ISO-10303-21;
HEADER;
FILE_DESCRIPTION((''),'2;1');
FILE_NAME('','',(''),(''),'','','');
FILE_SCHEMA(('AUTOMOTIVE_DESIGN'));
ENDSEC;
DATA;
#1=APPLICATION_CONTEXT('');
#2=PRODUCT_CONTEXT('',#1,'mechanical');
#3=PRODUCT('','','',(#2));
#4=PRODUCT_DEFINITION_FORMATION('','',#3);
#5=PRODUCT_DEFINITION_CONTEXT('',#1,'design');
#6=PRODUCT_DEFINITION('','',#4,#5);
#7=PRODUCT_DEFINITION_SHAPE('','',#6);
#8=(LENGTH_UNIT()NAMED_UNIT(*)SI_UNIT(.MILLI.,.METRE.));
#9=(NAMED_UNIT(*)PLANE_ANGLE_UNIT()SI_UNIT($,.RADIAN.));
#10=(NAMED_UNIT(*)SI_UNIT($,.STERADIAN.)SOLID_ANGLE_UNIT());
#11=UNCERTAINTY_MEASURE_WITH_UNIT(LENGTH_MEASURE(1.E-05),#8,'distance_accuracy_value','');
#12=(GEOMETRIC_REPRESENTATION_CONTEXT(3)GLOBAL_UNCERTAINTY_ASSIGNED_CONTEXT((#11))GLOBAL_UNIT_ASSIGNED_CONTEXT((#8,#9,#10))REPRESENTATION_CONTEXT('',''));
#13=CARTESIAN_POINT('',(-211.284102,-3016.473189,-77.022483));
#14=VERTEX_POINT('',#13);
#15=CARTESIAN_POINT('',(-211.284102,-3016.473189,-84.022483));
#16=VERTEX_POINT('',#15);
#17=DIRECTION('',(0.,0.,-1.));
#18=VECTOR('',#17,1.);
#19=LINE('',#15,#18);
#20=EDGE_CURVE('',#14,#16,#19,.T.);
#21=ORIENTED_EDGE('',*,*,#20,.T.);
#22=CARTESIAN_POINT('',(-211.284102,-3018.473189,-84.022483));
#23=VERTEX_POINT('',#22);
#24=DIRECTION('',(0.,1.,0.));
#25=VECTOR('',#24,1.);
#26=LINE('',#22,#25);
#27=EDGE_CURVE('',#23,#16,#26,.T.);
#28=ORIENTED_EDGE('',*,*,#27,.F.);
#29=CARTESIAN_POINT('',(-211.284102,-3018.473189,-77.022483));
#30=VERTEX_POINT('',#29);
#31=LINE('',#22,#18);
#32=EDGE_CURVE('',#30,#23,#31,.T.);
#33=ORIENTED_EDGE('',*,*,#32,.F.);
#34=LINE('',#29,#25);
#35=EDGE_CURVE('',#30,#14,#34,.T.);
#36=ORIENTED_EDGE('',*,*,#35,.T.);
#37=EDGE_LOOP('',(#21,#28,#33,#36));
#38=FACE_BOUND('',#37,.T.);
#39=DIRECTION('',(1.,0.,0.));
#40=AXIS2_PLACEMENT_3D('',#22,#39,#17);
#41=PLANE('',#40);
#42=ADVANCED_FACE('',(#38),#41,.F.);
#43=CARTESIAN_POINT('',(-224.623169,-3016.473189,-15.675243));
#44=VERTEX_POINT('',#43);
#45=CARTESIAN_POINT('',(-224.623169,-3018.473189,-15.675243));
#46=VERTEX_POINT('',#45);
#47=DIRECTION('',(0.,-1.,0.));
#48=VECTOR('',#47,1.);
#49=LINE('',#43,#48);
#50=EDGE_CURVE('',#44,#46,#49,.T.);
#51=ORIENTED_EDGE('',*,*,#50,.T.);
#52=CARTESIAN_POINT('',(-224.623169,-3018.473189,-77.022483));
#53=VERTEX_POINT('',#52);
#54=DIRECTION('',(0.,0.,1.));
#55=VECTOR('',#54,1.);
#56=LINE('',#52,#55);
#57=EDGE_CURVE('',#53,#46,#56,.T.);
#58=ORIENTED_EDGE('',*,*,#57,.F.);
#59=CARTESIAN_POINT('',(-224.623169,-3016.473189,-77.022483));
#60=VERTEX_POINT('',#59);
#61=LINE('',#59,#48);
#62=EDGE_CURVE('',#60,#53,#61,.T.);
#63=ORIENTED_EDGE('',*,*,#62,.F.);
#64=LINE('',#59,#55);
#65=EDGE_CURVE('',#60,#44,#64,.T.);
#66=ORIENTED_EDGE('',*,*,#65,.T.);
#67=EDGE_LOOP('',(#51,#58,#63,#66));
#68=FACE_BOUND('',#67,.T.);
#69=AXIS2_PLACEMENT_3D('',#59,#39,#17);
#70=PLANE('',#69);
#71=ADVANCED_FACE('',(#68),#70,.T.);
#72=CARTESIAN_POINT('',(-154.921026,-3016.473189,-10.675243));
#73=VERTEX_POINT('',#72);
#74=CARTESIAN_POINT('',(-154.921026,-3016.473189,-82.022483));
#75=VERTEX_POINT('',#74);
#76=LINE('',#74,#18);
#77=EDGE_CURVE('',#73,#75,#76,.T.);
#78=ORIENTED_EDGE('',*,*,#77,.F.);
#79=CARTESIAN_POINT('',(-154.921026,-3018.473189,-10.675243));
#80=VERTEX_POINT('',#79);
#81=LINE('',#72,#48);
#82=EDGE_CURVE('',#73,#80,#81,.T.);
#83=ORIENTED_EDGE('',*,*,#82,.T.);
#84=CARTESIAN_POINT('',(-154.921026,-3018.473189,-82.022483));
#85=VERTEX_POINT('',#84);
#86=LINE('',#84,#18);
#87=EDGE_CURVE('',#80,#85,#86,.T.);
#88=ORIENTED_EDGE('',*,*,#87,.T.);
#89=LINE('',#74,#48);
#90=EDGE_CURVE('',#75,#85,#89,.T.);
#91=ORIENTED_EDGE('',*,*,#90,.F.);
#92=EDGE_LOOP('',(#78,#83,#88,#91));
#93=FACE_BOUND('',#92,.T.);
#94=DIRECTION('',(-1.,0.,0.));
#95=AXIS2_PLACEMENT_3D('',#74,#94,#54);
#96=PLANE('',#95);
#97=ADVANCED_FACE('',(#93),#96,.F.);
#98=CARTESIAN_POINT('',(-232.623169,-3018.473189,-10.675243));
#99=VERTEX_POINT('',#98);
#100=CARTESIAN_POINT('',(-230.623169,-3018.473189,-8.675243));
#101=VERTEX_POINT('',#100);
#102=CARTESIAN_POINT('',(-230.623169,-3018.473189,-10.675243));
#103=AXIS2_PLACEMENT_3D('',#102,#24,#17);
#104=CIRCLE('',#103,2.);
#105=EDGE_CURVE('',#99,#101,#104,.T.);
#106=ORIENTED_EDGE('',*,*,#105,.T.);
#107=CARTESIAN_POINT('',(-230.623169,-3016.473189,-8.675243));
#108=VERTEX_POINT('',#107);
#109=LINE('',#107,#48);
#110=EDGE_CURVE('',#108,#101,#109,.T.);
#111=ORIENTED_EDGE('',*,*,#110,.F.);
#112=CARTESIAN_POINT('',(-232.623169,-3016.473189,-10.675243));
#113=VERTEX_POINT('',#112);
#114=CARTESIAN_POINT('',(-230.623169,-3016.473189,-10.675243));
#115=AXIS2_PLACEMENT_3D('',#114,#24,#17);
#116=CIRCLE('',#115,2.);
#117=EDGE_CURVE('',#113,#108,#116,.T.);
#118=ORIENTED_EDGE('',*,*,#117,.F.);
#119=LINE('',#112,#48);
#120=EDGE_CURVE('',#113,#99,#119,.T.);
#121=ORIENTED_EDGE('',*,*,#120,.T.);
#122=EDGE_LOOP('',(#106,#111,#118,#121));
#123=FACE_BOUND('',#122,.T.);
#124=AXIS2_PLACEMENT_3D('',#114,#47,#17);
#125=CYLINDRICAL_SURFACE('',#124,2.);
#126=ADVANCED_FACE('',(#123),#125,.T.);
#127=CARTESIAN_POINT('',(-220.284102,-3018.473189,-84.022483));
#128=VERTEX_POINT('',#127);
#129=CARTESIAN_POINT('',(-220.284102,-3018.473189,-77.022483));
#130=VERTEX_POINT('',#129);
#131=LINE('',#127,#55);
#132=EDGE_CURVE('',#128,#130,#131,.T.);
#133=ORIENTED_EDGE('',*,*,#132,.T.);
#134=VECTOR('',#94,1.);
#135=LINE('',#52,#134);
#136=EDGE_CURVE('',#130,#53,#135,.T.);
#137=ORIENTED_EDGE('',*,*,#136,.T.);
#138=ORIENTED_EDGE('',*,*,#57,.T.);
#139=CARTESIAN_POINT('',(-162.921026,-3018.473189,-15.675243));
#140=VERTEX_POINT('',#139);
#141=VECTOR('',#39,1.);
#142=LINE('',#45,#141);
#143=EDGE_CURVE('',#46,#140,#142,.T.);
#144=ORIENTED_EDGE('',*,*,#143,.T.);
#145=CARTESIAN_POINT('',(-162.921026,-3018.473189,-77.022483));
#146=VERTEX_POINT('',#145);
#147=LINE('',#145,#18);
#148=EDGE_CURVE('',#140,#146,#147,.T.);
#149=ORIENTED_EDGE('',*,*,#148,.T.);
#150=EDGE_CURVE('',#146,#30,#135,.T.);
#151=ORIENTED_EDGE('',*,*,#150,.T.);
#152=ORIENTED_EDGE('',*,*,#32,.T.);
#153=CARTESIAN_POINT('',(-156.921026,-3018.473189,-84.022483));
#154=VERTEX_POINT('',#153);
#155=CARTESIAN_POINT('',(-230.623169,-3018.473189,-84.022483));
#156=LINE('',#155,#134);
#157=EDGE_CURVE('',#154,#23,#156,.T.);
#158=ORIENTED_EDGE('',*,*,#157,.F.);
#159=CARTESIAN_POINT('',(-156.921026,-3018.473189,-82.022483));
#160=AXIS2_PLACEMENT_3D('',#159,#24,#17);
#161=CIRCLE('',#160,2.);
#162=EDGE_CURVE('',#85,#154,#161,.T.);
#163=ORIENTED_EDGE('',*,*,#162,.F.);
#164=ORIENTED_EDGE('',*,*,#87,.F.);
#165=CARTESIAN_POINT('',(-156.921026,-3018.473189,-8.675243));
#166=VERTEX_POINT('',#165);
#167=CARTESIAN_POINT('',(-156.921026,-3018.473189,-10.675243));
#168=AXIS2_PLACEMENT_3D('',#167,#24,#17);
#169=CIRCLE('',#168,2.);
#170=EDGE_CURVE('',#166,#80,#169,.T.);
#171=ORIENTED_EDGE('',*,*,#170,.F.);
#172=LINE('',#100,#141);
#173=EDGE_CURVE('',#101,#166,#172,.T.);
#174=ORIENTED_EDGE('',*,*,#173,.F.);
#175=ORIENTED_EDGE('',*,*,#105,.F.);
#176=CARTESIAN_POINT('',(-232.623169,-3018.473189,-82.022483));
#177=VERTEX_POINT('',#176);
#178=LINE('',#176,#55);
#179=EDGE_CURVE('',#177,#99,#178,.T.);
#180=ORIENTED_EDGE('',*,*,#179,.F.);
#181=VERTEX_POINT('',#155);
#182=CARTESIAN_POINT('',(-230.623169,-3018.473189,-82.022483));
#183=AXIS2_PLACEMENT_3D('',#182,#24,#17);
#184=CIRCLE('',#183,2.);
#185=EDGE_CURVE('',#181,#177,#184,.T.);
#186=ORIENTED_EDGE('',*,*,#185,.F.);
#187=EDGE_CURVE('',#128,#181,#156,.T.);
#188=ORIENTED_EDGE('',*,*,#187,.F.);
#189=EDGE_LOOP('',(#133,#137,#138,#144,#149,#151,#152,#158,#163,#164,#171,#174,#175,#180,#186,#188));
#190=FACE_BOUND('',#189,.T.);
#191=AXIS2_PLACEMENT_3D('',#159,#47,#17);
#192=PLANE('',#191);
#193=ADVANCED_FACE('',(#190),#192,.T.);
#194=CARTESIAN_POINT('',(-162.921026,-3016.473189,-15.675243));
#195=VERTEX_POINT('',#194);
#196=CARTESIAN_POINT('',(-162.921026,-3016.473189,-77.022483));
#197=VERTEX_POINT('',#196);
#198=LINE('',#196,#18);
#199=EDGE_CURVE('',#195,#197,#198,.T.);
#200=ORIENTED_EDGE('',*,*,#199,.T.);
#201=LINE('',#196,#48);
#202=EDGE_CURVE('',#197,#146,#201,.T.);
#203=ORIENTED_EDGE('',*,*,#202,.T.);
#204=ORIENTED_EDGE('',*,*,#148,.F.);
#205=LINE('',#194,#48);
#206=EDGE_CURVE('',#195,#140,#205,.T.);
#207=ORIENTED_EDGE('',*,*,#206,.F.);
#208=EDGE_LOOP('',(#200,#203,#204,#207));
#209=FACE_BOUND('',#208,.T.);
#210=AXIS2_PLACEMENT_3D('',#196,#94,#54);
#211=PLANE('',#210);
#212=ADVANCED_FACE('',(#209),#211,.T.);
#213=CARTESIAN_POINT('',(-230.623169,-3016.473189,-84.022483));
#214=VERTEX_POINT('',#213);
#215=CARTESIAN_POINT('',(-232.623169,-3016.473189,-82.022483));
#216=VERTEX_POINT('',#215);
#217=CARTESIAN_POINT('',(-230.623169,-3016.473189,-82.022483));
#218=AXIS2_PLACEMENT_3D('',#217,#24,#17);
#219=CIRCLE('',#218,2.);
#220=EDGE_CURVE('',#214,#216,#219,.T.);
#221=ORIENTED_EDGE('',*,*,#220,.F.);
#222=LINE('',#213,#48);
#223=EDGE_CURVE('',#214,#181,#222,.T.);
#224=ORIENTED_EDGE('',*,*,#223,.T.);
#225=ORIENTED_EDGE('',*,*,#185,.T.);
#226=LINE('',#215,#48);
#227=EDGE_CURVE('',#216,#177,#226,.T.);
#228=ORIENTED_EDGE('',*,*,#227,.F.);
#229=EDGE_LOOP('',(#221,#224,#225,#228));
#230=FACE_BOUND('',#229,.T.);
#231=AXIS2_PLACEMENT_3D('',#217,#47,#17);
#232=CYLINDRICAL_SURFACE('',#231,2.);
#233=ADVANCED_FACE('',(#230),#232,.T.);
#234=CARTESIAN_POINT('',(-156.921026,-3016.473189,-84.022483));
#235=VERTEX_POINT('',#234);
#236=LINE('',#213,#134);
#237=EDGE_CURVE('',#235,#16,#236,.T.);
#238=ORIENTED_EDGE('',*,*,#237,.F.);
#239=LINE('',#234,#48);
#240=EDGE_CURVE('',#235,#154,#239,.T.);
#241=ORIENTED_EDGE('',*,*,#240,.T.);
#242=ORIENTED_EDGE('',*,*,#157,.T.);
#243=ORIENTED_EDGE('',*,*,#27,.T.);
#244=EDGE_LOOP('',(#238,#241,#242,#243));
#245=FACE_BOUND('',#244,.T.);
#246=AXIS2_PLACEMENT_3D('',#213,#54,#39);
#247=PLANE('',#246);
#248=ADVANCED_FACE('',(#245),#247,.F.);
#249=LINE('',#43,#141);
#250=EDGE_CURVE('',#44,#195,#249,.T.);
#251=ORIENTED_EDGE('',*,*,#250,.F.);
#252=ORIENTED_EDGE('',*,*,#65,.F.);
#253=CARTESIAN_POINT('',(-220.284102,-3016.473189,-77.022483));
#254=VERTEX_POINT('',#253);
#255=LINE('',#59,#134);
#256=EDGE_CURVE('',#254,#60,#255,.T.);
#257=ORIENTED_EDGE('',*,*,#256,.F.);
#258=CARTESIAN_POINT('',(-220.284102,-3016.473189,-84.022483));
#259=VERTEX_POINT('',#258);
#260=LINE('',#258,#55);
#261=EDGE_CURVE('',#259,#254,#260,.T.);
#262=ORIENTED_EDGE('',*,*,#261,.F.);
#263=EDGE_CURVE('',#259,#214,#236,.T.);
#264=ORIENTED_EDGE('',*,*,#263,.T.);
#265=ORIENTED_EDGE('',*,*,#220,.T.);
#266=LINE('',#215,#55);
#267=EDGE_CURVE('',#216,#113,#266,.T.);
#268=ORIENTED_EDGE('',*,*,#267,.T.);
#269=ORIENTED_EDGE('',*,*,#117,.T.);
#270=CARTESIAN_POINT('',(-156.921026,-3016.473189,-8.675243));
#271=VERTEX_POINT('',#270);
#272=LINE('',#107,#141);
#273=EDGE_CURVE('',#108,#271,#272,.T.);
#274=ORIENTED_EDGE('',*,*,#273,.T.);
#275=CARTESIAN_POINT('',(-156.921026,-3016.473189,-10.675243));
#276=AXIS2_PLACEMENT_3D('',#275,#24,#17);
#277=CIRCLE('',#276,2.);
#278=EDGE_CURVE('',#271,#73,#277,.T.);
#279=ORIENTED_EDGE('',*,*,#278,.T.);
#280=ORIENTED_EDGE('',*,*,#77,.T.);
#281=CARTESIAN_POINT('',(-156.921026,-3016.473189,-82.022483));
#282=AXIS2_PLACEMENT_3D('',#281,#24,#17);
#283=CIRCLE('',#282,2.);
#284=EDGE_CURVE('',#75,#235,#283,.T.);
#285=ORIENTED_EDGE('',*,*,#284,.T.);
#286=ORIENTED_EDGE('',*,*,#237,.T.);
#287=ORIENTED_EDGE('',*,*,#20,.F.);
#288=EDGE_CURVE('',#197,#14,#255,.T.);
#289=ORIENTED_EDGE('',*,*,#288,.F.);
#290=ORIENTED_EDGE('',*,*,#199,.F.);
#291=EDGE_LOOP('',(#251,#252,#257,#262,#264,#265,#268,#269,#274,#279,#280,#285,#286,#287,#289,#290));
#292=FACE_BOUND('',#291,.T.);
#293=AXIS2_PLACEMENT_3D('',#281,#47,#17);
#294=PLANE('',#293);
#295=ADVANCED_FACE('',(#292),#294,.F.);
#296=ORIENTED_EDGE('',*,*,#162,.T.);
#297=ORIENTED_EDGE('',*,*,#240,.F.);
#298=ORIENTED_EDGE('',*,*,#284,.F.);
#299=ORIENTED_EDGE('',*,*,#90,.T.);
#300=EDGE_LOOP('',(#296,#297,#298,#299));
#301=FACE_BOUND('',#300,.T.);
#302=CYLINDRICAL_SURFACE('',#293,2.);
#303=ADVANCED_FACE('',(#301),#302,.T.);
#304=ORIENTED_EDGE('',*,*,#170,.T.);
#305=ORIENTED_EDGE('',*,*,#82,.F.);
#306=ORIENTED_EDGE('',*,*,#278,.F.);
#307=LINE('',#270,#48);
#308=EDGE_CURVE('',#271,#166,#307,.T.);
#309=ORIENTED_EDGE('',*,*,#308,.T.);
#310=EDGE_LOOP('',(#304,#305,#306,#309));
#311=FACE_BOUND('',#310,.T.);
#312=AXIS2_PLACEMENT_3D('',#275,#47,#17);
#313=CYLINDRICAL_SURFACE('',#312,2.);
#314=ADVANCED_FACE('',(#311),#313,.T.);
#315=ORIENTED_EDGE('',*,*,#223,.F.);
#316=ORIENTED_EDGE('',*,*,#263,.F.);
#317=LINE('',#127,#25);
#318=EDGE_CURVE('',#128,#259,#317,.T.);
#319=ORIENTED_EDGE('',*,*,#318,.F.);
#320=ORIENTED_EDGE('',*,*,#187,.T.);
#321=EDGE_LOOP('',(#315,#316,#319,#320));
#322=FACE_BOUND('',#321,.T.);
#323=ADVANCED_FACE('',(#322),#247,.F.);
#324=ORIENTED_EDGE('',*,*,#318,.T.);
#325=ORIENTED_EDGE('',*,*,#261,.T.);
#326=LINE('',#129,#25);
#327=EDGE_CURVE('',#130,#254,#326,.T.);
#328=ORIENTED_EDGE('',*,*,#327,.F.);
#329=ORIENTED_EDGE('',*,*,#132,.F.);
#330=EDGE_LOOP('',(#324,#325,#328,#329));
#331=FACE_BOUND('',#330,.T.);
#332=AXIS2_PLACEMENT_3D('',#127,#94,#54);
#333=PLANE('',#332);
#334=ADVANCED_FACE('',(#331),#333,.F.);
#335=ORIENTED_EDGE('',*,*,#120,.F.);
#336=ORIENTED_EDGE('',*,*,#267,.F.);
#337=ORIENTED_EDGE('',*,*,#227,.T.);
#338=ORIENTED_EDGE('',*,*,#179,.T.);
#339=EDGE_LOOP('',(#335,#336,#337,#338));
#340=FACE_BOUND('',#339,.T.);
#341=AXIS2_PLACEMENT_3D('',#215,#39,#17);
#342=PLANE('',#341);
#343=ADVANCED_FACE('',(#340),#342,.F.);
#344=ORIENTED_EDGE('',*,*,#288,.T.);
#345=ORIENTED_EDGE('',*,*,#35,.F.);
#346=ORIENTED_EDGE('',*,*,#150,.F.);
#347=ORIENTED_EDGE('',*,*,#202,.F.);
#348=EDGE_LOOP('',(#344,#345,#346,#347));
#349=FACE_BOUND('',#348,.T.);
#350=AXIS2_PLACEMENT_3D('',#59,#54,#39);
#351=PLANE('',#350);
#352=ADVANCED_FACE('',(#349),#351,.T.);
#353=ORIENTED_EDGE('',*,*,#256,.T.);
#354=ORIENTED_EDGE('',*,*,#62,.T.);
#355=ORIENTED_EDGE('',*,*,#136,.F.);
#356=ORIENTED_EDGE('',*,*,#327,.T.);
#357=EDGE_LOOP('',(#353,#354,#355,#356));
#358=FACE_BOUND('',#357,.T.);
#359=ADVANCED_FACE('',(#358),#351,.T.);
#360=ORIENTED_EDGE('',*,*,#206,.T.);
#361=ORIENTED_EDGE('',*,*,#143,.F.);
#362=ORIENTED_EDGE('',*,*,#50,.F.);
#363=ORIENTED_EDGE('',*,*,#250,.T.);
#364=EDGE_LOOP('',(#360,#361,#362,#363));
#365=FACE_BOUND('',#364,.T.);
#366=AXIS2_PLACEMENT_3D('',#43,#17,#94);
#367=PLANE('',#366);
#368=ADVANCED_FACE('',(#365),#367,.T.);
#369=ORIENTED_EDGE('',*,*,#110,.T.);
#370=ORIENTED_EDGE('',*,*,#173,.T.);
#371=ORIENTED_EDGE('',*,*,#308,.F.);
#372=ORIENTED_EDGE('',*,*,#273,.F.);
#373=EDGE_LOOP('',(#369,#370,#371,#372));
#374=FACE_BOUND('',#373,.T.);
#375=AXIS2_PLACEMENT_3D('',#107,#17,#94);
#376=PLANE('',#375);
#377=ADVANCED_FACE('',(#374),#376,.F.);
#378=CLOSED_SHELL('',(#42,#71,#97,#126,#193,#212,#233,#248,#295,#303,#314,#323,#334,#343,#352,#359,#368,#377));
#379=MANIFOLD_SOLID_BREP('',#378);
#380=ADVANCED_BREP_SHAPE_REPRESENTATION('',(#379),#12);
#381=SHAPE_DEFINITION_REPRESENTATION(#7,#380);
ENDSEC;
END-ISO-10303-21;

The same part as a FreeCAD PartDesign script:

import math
import FreeCAD as App
import Part
import Sketcher

V = App.Vector
Q = App.Units.Quantity

doc = App.newDocument("Part")
body = doc.addObject("PartDesign::Body", "Body")

sketch1 = body.newObject("Sketcher::SketchObject", "Sketch")
sketch1.AttachmentSupport = (doc.getObject("XZ_Plane"), [""])
sketch1.MapMode = "FlatFace"
sketch1.AttachmentOffset = App.Placement(V(0, 0, 3018.473189), App.Rotation())
sketch1.addGeometry([
    Part.LineSegment(V(-156.9, -84, 0), V(-230.6, -84, 0)),
    Part.ArcOfCircle(Part.Circle(V(-230.6, -82, 0), V(0, 0, 1), 2), math.radians(180), math.radians(270)),
    Part.LineSegment(V(-232.6, -82, 0), V(-232.6, -10.7, 0)),
    Part.ArcOfCircle(Part.Circle(V(-230.6, -10.7, 0), V(0, 0, 1), 2), math.radians(90), math.radians(180)),
    Part.LineSegment(V(-230.6, -8.7, 0), V(-156.9, -8.7, 0)),
    Part.ArcOfCircle(Part.Circle(V(-156.9, -10.7, 0), V(0, 0, 1), 2), math.radians(0), math.radians(90)),
    Part.LineSegment(V(-154.9, -10.7, 0), V(-154.9, -82, 0)),
    Part.ArcOfCircle(Part.Circle(V(-156.9, -82, 0), V(0, 0, 1), 2), math.radians(-90), math.radians(0)),
    Part.LineSegment(V(-224.6, -15.7, 0), V(-224.6, -77, 0)),
    Part.LineSegment(V(-224.6, -77, 0), V(-162.9, -77, 0)),
    Part.LineSegment(V(-162.9, -77, 0), V(-162.9, -15.7, 0)),
    Part.LineSegment(V(-162.9, -15.7, 0), V(-224.6, -15.7, 0)),
], False)
sketch1.addConstraint([
    Sketcher.Constraint("Tangent", 0, 2, 1, 2),
    Sketcher.Constraint("Tangent", 1, 1, 2, 1),
    Sketcher.Constraint("Tangent", 2, 2, 3, 2),
    Sketcher.Constraint("Tangent", 3, 1, 4, 1),
    Sketcher.Constraint("Tangent", 4, 2, 5, 2),
    Sketcher.Constraint("Tangent", 5, 1, 6, 1),
    Sketcher.Constraint("Tangent", 6, 2, 7, 2),
    Sketcher.Constraint("Tangent", 7, 1, 0, 1),
    Sketcher.Constraint("Coincident", 8, 2, 9, 1),
    Sketcher.Constraint("Coincident", 9, 2, 10, 1),
    Sketcher.Constraint("Coincident", 10, 2, 11, 1),
    Sketcher.Constraint("Coincident", 11, 2, 8, 1),
    Sketcher.Constraint("Horizontal", 0),
    Sketcher.Constraint("Vertical", 2),
    Sketcher.Constraint("Horizontal", 4),
    Sketcher.Constraint("Vertical", 6),
    Sketcher.Constraint("Vertical", 8),
    Sketcher.Constraint("Horizontal", 9),
    Sketcher.Constraint("Vertical", 10),
    Sketcher.Constraint("Horizontal", 11),
    Sketcher.Constraint("Equal", 1, 3),
    Sketcher.Constraint("Equal", 3, 5),
    Sketcher.Constraint("Equal", 5, 7),
    Sketcher.Constraint("Radius", 1, Q("2 mm")),
    Sketcher.Constraint("DistanceX", 1, 3, 8, 2, Q("6 mm")),
    Sketcher.Constraint("DistanceY", 1, 3, 8, 2, Q("5 mm")),
    Sketcher.Constraint("DistanceX", 9, 2, 7, 3, Q("6 mm")),
    Sketcher.Constraint("DistanceY", 10, 2, 5, 3, Q("5 mm")),
    Sketcher.Constraint("DistanceY", 2, 1, 2, 2, Q("71.34724 mm")),
    Sketcher.Constraint("DistanceX", 0, 2, 0, 1, Q("73.702143 mm")),
    Sketcher.Constraint("DistanceX", 1, 3, -1, 1, Q("230.623169 mm")),
    Sketcher.Constraint("DistanceY", 1, 3, -1, 1, Q("82.022483 mm")),
])
pad1 = body.newObject("PartDesign::Pad", "Pad")
pad1.Profile = sketch1
pad1.Length = 2
pad1.Reversed = True

sketch2 = body.newObject("Sketcher::SketchObject", "Sketch001")
sketch2.AttachmentSupport = (doc.getObject("XZ_Plane"), [""])
sketch2.MapMode = "FlatFace"
sketch2.AttachmentOffset = App.Placement(V(0, 0, 3016.473189), App.Rotation())
sketch2.addGeometry([
    Part.LineSegment(V(-220, -84, 0), V(-220, -77, 0)),
    Part.LineSegment(V(-220, -77, 0), V(-211, -77, 0)),
    Part.LineSegment(V(-211, -77, 0), V(-211, -84, 0)),
    Part.LineSegment(V(-211, -84, 0), V(-220, -84, 0)),
], False)
sketch2.addConstraint([
    Sketcher.Constraint("Coincident", 0, 2, 1, 1),
    Sketcher.Constraint("Coincident", 1, 2, 2, 1),
    Sketcher.Constraint("Coincident", 2, 2, 3, 1),
    Sketcher.Constraint("Coincident", 3, 2, 0, 1),
    Sketcher.Constraint("Vertical", 0),
    Sketcher.Constraint("Horizontal", 1),
    Sketcher.Constraint("Vertical", 2),
    Sketcher.Constraint("Horizontal", 3),
    Sketcher.Constraint("DistanceX", 1, 1, 1, 2, Q("9 mm")),
    Sketcher.Constraint("DistanceY", 0, 1, 0, 2, Q("7 mm")),
    Sketcher.Constraint("DistanceX", 0, 2, -1, 1, Q("220.284102 mm")),
    Sketcher.Constraint("DistanceY", 0, 2, -1, 1, Q("77.022483 mm")),
])
pocket1 = body.newObject("PartDesign::Pocket", "Pocket")
pocket1.Profile = sketch2
pocket1.Length = 2
pocket1.Reversed = True

doc.recompute()
